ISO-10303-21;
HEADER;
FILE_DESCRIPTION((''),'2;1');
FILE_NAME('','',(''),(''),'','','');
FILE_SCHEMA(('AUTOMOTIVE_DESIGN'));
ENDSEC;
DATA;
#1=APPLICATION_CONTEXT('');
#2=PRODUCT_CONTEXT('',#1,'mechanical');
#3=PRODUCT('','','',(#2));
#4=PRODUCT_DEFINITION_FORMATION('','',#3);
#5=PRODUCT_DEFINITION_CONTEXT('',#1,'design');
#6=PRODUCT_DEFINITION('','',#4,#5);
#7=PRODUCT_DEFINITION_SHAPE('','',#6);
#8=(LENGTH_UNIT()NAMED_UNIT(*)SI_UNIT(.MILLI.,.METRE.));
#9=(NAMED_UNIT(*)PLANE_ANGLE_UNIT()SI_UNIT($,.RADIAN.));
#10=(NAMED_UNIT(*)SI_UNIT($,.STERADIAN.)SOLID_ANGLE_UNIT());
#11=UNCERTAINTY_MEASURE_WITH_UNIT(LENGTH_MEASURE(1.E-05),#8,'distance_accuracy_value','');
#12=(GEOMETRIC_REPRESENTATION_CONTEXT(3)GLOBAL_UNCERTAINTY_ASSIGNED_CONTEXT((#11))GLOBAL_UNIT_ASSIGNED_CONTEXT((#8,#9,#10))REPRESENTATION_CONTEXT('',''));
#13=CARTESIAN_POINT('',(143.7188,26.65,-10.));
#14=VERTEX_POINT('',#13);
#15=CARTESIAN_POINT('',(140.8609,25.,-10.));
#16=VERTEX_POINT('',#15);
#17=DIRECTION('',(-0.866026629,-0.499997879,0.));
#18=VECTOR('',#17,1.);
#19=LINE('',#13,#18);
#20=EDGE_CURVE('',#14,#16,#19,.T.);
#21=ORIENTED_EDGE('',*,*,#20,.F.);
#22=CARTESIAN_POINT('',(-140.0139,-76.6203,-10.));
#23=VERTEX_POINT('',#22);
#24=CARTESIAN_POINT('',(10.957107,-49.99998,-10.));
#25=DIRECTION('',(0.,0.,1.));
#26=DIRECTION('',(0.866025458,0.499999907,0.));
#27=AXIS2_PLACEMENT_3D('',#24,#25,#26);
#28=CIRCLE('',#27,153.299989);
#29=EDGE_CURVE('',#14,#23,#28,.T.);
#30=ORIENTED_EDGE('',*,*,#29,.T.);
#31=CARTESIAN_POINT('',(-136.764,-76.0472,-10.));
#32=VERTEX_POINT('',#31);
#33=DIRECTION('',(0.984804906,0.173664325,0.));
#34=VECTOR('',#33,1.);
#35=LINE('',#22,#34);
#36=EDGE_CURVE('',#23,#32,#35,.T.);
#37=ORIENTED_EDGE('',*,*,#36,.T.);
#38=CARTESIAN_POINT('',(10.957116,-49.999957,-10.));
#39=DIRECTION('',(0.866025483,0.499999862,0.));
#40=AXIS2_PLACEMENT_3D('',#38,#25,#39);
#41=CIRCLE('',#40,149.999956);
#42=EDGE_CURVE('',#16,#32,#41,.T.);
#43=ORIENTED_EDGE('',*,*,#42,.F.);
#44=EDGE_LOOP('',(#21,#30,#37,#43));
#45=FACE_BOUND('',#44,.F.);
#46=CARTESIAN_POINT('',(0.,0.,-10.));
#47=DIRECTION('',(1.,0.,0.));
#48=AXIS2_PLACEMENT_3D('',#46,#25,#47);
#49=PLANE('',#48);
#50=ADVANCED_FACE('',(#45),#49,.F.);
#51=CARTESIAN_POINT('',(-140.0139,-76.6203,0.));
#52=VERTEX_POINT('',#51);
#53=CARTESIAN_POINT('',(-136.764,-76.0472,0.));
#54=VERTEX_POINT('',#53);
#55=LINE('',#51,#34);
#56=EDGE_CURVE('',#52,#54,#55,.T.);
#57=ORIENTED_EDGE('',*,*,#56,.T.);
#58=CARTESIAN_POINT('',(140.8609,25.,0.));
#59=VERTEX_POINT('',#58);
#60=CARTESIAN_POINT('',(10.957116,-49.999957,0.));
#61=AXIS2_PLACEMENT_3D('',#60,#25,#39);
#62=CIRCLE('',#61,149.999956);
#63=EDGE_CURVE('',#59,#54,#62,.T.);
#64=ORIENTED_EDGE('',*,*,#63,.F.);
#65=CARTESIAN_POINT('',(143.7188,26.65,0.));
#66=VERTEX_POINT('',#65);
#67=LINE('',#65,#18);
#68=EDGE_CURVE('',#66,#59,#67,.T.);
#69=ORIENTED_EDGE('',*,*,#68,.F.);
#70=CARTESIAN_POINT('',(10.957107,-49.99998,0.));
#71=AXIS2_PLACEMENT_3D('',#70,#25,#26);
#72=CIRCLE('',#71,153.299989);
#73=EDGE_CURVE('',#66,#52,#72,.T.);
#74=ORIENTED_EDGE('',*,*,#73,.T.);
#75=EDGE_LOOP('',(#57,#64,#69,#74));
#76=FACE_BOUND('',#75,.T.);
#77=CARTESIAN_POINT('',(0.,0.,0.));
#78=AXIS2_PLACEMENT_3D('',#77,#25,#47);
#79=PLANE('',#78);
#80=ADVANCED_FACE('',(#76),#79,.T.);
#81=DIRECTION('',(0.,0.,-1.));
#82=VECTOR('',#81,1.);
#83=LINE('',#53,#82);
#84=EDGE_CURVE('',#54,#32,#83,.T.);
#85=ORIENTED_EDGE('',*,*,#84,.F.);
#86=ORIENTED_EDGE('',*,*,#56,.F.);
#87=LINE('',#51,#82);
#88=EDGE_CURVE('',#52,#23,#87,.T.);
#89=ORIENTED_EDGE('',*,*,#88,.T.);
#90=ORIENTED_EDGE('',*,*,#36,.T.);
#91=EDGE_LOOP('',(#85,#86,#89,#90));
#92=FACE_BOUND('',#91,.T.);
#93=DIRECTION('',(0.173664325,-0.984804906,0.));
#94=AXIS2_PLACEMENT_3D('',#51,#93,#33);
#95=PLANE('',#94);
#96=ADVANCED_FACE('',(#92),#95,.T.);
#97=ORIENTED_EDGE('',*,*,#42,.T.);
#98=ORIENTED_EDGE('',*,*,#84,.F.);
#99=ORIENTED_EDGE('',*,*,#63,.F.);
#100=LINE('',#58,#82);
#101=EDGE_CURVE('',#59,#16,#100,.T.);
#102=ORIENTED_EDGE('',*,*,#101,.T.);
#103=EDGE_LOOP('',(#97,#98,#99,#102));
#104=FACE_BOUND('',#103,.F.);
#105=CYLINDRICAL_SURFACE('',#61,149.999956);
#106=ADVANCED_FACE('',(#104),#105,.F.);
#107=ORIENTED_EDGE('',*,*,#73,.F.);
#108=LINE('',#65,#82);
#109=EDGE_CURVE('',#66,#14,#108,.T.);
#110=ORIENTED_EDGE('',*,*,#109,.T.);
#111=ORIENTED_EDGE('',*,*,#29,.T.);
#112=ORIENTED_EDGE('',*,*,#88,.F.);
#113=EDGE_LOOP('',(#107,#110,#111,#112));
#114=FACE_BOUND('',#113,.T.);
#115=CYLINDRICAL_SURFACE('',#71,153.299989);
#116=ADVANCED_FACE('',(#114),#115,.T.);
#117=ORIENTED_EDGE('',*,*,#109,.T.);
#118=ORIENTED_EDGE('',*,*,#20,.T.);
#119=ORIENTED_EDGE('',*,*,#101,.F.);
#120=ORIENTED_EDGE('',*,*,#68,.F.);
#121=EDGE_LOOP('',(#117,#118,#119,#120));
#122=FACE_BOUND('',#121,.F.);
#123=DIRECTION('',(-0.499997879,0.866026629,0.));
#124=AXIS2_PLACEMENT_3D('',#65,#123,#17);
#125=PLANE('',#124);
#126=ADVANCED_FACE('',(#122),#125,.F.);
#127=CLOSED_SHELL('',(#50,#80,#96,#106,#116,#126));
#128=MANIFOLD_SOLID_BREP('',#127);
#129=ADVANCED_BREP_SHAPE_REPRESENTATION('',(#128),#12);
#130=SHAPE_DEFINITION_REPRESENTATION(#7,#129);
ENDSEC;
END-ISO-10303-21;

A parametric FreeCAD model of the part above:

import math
import FreeCAD as App
import Part
import Sketcher
Q = App.Units.Quantity

doc = App.newDocument("Part")
body = doc.addObject("PartDesign::Body", "Body")

# Sketch on XY plane
sketch1 = body.newObject("Sketcher::SketchObject", "Sketch")
sketch1.AttachmentSupport = (doc.getObject("XY_Plane"), [""])
sketch1.MapMode = "FlatFace"
sketch1.addGeometry([
    Part.ArcOfCircle(Part.Circle(App.Vector(11, -50, 0), App.Vector(0, 0, 1), 150), math.radians(30), math.radians(190)),
    Part.LineSegment(App.Vector(140.9, 25, 0), App.Vector(143.7, 26.6, 0)),
    Part.ArcOfCircle(Part.Circle(App.Vector(11, -50, 0), App.Vector(0, 0, 1), 153.3), math.radians(30), math.radians(190)),
    Part.LineSegment(App.Vector(-140, -76.6, 0), App.Vector(-136.8, -76, 0)),
], False)
sketch1.addConstraint([
    Sketcher.Constraint("Coincident", 0, 1, 1, 1),
    Sketcher.Constraint("Coincident", 1, 2, 2, 1),
    Sketcher.Constraint("Coincident", 2, 2, 3, 1),
    Sketcher.Constraint("Coincident", 3, 2, 0, 2),
    Sketcher.Constraint("Coincident", 2, 3, 0, 3),
    Sketcher.Constraint("Radius", 0, Q("150 mm")),
    Sketcher.Constraint("Distance", 1, Q("3.3 mm")),
    Sketcher.Constraint("Angle", 1, Q("29.9999 deg")),
    Sketcher.Constraint("Angle", 3, Q("10.001 deg")),
    Sketcher.Constraint("DistanceY", 0, 3, -1, 1, Q("50 mm")),
    Sketcher.Constraint("DistanceY", -1, 1, 0, 1, Q("25 mm")),
    Sketcher.Constraint("DistanceX", -1, 1, 0, 3, Q("10.957 mm")),
    Sketcher.Constraint("DistanceX", 2, 2, -1, 1, Q("140.014 mm")),
])
pad1 = body.newObject("PartDesign::Pad", "Pad")
pad1.Profile = sketch1
pad1.Length = 10
pad1.Reversed = True

doc.recompute()
